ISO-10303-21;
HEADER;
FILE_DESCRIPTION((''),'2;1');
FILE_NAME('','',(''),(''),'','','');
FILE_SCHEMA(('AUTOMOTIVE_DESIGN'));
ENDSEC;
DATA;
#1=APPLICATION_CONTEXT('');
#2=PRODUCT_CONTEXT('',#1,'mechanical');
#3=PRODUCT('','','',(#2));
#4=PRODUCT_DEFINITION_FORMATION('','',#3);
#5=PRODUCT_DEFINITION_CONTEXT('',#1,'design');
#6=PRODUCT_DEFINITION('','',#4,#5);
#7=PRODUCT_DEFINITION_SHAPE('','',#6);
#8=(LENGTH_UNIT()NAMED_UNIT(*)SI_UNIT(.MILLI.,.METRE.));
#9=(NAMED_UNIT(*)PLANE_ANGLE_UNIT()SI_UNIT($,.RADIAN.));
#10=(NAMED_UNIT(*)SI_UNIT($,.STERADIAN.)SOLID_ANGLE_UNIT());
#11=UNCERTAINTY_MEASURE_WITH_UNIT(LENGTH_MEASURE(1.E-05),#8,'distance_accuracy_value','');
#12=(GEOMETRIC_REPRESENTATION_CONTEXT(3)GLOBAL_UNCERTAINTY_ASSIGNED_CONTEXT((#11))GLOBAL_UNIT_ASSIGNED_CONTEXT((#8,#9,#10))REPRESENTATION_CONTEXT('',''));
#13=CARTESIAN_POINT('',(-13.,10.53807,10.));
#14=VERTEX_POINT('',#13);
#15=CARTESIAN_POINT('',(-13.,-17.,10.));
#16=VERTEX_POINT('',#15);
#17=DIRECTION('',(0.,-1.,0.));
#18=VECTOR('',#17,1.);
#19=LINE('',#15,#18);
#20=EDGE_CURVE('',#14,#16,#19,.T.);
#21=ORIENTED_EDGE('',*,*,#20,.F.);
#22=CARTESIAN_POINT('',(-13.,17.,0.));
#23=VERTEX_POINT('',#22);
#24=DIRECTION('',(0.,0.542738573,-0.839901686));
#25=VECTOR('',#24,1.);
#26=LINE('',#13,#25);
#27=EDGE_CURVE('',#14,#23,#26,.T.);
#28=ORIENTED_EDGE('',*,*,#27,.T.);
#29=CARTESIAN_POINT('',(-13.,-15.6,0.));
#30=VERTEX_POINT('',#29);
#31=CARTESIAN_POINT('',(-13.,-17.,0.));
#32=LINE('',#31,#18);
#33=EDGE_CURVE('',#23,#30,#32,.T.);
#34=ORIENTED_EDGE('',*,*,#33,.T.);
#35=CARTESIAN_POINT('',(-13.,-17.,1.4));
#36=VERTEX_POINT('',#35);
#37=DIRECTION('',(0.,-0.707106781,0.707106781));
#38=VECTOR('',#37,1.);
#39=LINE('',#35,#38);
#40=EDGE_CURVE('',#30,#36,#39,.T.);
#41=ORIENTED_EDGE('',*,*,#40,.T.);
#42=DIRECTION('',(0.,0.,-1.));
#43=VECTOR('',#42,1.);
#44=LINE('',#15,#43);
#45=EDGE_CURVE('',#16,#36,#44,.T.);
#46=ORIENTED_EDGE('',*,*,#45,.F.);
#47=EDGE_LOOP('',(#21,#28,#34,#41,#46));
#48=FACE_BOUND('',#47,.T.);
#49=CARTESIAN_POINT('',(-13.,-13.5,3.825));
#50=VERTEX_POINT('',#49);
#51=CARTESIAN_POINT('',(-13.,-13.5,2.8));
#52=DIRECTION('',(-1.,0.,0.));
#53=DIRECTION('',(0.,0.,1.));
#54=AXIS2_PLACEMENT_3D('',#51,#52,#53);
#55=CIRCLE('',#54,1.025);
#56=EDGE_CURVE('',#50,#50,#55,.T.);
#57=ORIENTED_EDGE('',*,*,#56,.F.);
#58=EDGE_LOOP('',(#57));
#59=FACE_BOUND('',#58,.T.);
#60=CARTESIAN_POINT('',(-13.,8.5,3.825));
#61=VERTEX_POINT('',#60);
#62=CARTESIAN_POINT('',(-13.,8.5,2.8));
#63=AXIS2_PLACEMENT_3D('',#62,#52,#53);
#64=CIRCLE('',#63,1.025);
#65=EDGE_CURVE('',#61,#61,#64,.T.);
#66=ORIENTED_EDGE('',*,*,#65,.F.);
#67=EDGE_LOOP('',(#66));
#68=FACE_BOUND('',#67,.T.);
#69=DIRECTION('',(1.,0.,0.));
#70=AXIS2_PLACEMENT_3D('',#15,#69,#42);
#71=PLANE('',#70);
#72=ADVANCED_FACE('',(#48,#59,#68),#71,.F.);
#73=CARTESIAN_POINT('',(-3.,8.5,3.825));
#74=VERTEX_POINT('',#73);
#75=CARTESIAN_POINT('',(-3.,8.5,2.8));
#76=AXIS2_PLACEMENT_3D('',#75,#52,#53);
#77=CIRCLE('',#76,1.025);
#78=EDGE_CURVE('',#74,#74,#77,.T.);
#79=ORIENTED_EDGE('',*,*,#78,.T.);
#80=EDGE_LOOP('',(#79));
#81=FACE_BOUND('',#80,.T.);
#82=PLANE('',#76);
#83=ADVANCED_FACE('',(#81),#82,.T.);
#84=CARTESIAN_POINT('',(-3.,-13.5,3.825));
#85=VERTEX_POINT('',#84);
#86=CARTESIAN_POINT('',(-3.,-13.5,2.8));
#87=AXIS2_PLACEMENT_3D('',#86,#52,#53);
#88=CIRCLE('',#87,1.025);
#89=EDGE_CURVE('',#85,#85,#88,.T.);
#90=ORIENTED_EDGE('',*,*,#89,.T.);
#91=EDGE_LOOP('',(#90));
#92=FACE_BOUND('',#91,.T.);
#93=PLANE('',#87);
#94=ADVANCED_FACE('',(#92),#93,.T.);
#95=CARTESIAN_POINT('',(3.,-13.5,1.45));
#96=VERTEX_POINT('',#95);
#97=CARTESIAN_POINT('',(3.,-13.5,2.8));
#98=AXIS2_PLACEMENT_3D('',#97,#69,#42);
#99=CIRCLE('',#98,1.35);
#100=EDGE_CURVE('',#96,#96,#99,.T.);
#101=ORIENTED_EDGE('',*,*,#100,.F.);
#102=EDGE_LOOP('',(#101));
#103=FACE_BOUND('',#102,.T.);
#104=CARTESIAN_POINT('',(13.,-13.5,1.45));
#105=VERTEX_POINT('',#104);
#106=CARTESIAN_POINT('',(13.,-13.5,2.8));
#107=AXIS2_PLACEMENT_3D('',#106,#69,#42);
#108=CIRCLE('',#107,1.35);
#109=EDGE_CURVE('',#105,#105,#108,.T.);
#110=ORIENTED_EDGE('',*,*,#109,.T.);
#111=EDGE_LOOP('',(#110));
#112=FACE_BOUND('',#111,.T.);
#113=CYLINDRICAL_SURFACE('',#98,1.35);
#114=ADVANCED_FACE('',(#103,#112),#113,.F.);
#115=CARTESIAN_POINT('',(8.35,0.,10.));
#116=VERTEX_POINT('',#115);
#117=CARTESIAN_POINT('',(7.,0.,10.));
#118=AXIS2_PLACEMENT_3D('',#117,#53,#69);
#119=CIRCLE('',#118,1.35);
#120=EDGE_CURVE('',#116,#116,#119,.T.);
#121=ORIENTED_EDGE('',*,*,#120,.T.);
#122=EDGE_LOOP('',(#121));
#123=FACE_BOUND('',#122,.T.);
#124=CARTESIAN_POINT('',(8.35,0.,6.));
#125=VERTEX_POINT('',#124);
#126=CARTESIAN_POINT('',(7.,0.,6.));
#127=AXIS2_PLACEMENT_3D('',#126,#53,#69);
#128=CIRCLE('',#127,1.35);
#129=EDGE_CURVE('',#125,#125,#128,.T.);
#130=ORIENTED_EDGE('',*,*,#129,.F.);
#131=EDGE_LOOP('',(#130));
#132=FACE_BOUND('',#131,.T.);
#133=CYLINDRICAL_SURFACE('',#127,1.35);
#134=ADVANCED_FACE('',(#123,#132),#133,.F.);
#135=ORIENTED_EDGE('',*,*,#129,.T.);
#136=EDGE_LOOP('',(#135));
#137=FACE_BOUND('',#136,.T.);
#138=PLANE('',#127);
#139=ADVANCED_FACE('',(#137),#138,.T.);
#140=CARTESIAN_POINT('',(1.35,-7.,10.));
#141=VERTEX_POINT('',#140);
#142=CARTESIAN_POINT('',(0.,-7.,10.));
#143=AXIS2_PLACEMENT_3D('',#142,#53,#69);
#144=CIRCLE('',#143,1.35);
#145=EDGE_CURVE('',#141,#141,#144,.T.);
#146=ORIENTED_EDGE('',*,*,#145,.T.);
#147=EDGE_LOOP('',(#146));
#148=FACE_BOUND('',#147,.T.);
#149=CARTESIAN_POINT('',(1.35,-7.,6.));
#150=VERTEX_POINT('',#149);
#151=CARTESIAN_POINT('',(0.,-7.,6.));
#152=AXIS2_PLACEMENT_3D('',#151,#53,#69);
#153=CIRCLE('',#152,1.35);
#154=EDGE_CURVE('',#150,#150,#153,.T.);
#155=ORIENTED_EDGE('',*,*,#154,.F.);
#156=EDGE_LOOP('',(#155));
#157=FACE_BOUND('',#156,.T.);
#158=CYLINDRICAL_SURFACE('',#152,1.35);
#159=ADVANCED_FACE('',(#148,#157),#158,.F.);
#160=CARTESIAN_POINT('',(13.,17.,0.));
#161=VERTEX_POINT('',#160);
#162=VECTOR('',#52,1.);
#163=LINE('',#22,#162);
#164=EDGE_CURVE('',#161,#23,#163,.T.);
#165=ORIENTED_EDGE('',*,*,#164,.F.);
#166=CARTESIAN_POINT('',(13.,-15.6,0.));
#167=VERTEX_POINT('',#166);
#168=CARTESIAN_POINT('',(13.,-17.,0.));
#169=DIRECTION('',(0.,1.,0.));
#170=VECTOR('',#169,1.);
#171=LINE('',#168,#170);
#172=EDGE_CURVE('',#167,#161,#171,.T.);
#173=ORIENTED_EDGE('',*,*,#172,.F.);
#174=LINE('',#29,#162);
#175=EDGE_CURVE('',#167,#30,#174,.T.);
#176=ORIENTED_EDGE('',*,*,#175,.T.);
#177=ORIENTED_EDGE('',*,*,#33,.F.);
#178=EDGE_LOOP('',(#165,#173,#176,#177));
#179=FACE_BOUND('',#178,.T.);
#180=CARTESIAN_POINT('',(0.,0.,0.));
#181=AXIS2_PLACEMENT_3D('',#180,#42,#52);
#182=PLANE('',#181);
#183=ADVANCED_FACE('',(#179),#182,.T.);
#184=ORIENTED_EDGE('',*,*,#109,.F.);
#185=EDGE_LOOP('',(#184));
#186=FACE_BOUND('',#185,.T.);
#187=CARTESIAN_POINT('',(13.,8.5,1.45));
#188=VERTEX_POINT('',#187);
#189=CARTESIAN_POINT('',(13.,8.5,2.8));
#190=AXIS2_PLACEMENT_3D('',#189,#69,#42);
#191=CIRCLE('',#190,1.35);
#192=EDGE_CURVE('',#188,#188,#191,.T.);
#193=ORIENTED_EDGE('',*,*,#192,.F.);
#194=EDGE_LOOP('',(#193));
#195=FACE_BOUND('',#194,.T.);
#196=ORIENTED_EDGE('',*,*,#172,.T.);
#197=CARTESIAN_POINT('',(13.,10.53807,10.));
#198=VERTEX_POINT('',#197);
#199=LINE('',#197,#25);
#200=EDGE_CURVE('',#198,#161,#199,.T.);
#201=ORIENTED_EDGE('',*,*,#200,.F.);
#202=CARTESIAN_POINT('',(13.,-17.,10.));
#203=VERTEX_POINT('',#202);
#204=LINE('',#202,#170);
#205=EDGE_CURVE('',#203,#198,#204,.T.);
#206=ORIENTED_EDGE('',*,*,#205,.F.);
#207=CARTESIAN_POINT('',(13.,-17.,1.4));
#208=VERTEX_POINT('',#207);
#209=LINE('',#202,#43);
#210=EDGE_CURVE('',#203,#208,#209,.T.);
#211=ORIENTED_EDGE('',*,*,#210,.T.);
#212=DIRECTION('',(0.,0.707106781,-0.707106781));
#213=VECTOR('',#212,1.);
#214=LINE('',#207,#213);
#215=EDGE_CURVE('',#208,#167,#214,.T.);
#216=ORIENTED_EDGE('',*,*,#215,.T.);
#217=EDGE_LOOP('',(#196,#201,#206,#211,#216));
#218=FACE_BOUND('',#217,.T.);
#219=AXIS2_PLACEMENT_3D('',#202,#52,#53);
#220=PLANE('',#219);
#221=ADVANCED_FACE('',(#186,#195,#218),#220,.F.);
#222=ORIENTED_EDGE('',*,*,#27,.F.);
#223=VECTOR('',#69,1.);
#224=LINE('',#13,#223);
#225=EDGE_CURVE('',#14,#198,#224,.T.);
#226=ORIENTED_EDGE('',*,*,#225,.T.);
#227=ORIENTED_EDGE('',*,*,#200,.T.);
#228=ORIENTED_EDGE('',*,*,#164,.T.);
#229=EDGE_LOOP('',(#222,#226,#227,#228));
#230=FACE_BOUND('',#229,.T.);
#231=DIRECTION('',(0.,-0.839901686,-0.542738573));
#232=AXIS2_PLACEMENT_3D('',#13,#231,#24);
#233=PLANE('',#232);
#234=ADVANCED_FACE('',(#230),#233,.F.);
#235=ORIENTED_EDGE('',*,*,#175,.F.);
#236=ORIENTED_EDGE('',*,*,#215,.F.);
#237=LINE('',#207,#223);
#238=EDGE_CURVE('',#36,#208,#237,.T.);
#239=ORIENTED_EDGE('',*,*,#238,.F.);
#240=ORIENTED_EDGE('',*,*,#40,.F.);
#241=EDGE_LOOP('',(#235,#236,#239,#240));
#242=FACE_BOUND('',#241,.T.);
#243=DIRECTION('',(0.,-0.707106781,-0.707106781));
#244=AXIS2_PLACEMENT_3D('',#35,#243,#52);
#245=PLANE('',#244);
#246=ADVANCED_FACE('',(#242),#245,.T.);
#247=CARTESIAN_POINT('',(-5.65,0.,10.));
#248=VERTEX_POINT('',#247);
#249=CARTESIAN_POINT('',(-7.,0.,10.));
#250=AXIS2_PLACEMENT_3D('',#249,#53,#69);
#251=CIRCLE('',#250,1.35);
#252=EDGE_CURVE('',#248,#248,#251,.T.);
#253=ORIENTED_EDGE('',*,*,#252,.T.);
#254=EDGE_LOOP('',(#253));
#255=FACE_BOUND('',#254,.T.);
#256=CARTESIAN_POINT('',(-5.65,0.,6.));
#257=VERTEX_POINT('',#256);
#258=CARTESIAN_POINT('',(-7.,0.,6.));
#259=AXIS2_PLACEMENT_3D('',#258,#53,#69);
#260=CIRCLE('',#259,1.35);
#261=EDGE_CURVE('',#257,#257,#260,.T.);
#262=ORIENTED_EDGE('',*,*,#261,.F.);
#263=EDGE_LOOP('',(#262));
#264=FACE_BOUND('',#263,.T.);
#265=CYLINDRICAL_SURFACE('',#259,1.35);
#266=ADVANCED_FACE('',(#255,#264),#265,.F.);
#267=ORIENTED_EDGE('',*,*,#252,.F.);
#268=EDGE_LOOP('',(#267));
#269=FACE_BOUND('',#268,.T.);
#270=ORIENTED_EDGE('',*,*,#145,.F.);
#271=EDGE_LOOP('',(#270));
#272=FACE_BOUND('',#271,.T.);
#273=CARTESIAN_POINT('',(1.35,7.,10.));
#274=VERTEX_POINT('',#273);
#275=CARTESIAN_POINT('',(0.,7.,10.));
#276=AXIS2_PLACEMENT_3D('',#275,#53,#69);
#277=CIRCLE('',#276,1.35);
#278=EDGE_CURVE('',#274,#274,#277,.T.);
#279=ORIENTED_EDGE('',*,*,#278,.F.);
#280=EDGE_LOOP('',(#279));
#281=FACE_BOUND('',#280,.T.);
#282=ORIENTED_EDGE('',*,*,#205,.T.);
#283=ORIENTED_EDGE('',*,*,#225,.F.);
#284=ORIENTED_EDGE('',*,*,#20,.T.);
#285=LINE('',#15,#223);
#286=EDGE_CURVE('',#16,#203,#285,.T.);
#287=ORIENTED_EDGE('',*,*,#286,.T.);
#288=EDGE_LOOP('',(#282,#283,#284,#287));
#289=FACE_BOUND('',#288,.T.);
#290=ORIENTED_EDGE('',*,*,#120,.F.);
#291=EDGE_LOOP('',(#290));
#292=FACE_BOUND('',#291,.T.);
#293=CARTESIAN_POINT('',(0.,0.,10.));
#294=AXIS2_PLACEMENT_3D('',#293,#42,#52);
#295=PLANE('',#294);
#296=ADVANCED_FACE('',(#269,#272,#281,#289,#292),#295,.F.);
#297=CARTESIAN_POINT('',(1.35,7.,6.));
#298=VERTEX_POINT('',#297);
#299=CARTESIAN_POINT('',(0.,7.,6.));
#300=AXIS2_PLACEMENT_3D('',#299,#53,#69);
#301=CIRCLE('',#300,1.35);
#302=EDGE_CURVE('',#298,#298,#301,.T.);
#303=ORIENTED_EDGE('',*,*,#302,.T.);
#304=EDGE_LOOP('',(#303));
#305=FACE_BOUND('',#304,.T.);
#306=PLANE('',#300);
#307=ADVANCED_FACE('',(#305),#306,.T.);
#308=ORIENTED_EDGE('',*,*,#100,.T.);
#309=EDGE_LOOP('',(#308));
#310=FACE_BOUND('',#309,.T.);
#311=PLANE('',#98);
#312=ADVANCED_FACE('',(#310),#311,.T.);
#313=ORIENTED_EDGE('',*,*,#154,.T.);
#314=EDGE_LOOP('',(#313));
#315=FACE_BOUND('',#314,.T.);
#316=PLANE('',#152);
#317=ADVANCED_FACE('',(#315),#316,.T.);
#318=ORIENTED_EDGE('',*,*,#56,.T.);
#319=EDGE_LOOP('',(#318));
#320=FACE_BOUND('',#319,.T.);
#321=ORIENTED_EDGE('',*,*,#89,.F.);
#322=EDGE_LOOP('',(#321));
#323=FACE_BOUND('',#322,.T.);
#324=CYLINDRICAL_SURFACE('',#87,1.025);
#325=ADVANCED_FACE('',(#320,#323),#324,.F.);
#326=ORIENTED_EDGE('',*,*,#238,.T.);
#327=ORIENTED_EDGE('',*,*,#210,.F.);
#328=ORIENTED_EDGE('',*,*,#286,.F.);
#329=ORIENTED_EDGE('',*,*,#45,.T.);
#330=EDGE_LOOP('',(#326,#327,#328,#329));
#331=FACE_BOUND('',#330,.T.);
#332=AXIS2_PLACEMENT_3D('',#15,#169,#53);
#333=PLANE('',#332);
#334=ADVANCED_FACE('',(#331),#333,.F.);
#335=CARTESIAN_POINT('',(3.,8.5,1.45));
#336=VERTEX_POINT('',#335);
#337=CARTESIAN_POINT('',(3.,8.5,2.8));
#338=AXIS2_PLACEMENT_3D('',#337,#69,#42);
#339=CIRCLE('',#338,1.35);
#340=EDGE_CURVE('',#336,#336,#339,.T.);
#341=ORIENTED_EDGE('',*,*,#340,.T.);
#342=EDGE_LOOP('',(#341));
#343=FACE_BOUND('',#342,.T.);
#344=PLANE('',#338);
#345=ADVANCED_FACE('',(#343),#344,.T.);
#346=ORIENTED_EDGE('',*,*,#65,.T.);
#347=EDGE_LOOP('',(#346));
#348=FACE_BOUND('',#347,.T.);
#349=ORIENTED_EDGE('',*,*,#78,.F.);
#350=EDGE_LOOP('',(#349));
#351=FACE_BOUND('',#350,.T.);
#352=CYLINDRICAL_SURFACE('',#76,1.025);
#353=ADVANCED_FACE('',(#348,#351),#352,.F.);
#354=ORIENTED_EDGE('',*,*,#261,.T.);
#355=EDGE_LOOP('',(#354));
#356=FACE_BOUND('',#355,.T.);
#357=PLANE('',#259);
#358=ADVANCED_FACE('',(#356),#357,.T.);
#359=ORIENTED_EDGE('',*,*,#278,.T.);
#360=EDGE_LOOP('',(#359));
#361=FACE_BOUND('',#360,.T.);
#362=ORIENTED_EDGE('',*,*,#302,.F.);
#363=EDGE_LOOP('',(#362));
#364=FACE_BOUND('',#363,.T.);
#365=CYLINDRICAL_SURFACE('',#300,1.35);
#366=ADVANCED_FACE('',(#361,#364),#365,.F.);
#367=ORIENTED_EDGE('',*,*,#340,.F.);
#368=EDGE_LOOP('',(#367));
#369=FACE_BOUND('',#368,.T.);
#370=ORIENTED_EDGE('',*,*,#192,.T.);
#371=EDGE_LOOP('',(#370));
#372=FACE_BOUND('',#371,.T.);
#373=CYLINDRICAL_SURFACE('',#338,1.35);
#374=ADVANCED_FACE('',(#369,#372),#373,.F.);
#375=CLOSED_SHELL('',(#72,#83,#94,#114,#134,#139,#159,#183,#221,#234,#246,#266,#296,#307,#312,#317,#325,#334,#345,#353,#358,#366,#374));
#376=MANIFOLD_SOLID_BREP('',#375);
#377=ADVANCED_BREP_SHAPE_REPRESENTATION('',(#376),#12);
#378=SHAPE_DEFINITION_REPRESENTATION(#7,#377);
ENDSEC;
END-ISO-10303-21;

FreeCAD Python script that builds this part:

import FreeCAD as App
import Part
import Sketcher
from FreeCAD import Vector
Q = App.Units.Quantity


def edges_at(feature, points):
    """Names of the edges that pass closest to the given points."""
    edges = feature.Shape.Edges
    near = lambda p: min(range(len(edges)), key=lambda i: edges[i].distToShape(Part.Vertex(*p))[0])
    return sorted({f"Edge{near(p) + 1}" for p in points})

doc = App.newDocument("Part")
body = doc.addObject("PartDesign::Body", "Body")

# Sketch on XY plane
sketch1 = body.newObject("Sketcher::SketchObject", "Sketch")
sketch1.AttachmentSupport = (doc.getObject("XY_Plane"), [""])
sketch1.MapMode = "FlatFace"
sketch1.addGeometry([
    Part.LineSegment(Vector(-13, 17, 0), Vector(-13, -17, 0)),
    Part.LineSegment(Vector(-13, -17, 0), Vector(13, -17, 0)),
    Part.LineSegment(Vector(13, -17, 0), Vector(13, 17, 0)),
    Part.LineSegment(Vector(13, 17, 0), Vector(-13, 17, 0)),
], False)
sketch1.addConstraint([
    Sketcher.Constraint("Coincident", 0, 2, 1, 1),
    Sketcher.Constraint("Coincident", 1, 2, 2, 1),
    Sketcher.Constraint("Coincident", 2, 2, 3, 1),
    Sketcher.Constraint("Coincident", 3, 2, 0, 1),
    Sketcher.Constraint("Vertical", 0),
    Sketcher.Constraint("Horizontal", 1),
    Sketcher.Constraint("Vertical", 2),
    Sketcher.Constraint("Horizontal", 3),
    Sketcher.Constraint("Symmetric", 0, 2, 2, 2, -1, 1),
    Sketcher.Constraint("DistanceX", 1, 1, 1, 2, Q("26 mm")),
    Sketcher.Constraint("DistanceY", 0, 2, 0, 1, Q("34 mm")),
])
pad1 = body.newObject("PartDesign::Pad", "Pad")
pad1.Profile = sketch1
pad1.Length = 10
doc.recompute()

chamfer = body.newObject("PartDesign::Chamfer", "Chamfer")
chamfer.Base = (pad1, edges_at(pad1, [(0, -17, 0)]))
chamfer.Size = 1.4

# Sketch on YZ plane
sketch2 = body.newObject("Sketcher::SketchObject", "Sketch001")
sketch2.AttachmentSupport = (doc.getObject("YZ_Plane"), [""])
sketch2.MapMode = "FlatFace"
sketch2.addGeometry([
    Part.LineSegment(Vector(17, 0, 0), Vector(17, 10, 0)),
    Part.LineSegment(Vector(17, 10, 0), Vector(11, 10, 0)),
    Part.LineSegment(Vector(11, 10, 0), Vector(17, 0, 0)),
], False)
sketch2.addConstraint([
    Sketcher.Constraint("Coincident", 0, 2, 1, 1),
    Sketcher.Constraint("Coincident", 1, 2, 2, 1),
    Sketcher.Constraint("Coincident", 2, 2, 0, 1),
    Sketcher.Constraint("Vertical", 0),
    Sketcher.Constraint("Horizontal", 1),
    Sketcher.Constraint("PointOnObject", 2, 2, -1),
    Sketcher.Constraint("DistanceY", 0, 1, 0, 2, Q("10 mm")),
    Sketcher.Constraint("DistanceX", -1, 1, 0, 2, Q("17 mm")),
    Sketcher.Constraint("DistanceX", 1, 2, 1, 1, Q("6.46193 mm")),
])
pocket1 = body.newObject("PartDesign::Pocket", "Pocket")
pocket1.Profile = sketch2
pocket1.Type = "ThroughAll"
pocket1.Midplane = True

# Sketch on YZ plane
sketch3 = body.newObject("Sketcher::SketchObject", "Sketch002")
sketch3.AttachmentSupport = (doc.getObject("YZ_Plane"), [""])
sketch3.MapMode = "FlatFace"
sketch3.AttachmentOffset = App.Placement(Vector(0, 0, 13), App.Rotation())
sketch3.addGeometry([
    Part.Circle(Vector(8.5, 2.8, 0), Vector(0, 0, 1), 1.4),
    Part.Circle(Vector(-13.5, 2.8, 0), Vector(0, 0, 1), 1.4),
], False)
sketch3.addConstraint([
    Sketcher.Constraint("Equal", 0, 1),
    Sketcher.Constraint("Horizontal", 0, 3, 1, 3),
    Sketcher.Constraint("Diameter", 0, Q("2.7 mm")),
    Sketcher.Constraint("DistanceX", 1, 3, 0, 3, Q("22 mm")),
    Sketcher.Constraint("DistanceX", -1, 1, 0, 3, Q("8.5 mm")),
    Sketcher.Constraint("DistanceY", -1, 1, 0, 3, Q("2.8 mm")),
])
pocket2 = body.newObject("PartDesign::Pocket", "Pocket001")
pocket2.Profile = sketch3
pocket2.Length = 10

# Sketch on YZ plane
sketch4 = body.newObject("Sketcher::SketchObject", "Sketch003")
sketch4.AttachmentSupport = (doc.getObject("YZ_Plane"), [""])
sketch4.MapMode = "FlatFace"
sketch4.AttachmentOffset = App.Placement(Vector(0, 0, -13), App.Rotation())
sketch4.addGeometry([
    Part.Circle(Vector(8.5, 2.8, 0), Vector(0, 0, 1), 1),
    Part.Circle(Vector(-13.5, 2.8, 0), Vector(0, 0, 1), 1),
], False)
sketch4.addConstraint([
    Sketcher.Constraint("Equal", 0, 1),
    Sketcher.Constraint("Horizontal", 0, 3, 1, 3),
    Sketcher.Constraint("Diameter", 0, Q("2.05 mm")),
    Sketcher.Constraint("DistanceX", 1, 3, 0, 3, Q("22 mm")),
    Sketcher.Constraint("DistanceX", -1, 1, 0, 3, Q("8.5 mm")),
    Sketcher.Constraint("DistanceY", -1, 1, 0, 3, Q("2.8 mm")),
])
pocket3 = body.newObject("PartDesign::Pocket", "Pocket002")
pocket3.Profile = sketch4
pocket3.Length = 10
pocket3.Reversed = True

# Sketch on XY plane
sketch5 = body.newObject("Sketcher::SketchObject", "Sketch004")
sketch5.AttachmentSupport = (doc.getObject("XY_Plane"), [""])
sketch5.MapMode = "FlatFace"
sketch5.AttachmentOffset = App.Placement(Vector(0, 0, 10), App.Rotation())
sketch5.addGeometry([
    Part.Circle(Vector(7, 0, 0), Vector(0, 0, 1), 1.4),
    Part.Circle(Vector(0, -7, 0), Vector(0, 0, 1), 1.4),
    Part.Circle(Vector(-7, 0, 0), Vector(0, 0, 1), 1.4),
    Part.Circle(Vector(0, 7, 0), Vector(0, 0, 1), 1.4),
], False)
sketch5.addConstraint([
    Sketcher.Constraint("Equal", 0, 1),
    Sketcher.Constraint("Equal", 1, 2),
    Sketcher.Constraint("Equal", 2, 3),
    Sketcher.Constraint("Symmetric", 0, 3, 2, 3, -1, 1),
    Sketcher.Constraint("Symmetric", 1, 3, 3, 3, -1, 1),
    Sketcher.Constraint("PointOnObject", 0, 3, -1),
    Sketcher.Constraint("PointOnObject", 1, 3, -2),
    Sketcher.Constraint("Diameter", 0, Q("2.7 mm")),
    Sketcher.Constraint("DistanceX", -1, 1, 0, 3, Q("7 mm")),
    Sketcher.Constraint("DistanceY", 1, 3, -1, 1, Q("7 mm")),
])
pocket4 = body.newObject("PartDesign::Pocket", "Pocket003")
pocket4.Profile = sketch5
pocket4.Length = 4

doc.recompute()
